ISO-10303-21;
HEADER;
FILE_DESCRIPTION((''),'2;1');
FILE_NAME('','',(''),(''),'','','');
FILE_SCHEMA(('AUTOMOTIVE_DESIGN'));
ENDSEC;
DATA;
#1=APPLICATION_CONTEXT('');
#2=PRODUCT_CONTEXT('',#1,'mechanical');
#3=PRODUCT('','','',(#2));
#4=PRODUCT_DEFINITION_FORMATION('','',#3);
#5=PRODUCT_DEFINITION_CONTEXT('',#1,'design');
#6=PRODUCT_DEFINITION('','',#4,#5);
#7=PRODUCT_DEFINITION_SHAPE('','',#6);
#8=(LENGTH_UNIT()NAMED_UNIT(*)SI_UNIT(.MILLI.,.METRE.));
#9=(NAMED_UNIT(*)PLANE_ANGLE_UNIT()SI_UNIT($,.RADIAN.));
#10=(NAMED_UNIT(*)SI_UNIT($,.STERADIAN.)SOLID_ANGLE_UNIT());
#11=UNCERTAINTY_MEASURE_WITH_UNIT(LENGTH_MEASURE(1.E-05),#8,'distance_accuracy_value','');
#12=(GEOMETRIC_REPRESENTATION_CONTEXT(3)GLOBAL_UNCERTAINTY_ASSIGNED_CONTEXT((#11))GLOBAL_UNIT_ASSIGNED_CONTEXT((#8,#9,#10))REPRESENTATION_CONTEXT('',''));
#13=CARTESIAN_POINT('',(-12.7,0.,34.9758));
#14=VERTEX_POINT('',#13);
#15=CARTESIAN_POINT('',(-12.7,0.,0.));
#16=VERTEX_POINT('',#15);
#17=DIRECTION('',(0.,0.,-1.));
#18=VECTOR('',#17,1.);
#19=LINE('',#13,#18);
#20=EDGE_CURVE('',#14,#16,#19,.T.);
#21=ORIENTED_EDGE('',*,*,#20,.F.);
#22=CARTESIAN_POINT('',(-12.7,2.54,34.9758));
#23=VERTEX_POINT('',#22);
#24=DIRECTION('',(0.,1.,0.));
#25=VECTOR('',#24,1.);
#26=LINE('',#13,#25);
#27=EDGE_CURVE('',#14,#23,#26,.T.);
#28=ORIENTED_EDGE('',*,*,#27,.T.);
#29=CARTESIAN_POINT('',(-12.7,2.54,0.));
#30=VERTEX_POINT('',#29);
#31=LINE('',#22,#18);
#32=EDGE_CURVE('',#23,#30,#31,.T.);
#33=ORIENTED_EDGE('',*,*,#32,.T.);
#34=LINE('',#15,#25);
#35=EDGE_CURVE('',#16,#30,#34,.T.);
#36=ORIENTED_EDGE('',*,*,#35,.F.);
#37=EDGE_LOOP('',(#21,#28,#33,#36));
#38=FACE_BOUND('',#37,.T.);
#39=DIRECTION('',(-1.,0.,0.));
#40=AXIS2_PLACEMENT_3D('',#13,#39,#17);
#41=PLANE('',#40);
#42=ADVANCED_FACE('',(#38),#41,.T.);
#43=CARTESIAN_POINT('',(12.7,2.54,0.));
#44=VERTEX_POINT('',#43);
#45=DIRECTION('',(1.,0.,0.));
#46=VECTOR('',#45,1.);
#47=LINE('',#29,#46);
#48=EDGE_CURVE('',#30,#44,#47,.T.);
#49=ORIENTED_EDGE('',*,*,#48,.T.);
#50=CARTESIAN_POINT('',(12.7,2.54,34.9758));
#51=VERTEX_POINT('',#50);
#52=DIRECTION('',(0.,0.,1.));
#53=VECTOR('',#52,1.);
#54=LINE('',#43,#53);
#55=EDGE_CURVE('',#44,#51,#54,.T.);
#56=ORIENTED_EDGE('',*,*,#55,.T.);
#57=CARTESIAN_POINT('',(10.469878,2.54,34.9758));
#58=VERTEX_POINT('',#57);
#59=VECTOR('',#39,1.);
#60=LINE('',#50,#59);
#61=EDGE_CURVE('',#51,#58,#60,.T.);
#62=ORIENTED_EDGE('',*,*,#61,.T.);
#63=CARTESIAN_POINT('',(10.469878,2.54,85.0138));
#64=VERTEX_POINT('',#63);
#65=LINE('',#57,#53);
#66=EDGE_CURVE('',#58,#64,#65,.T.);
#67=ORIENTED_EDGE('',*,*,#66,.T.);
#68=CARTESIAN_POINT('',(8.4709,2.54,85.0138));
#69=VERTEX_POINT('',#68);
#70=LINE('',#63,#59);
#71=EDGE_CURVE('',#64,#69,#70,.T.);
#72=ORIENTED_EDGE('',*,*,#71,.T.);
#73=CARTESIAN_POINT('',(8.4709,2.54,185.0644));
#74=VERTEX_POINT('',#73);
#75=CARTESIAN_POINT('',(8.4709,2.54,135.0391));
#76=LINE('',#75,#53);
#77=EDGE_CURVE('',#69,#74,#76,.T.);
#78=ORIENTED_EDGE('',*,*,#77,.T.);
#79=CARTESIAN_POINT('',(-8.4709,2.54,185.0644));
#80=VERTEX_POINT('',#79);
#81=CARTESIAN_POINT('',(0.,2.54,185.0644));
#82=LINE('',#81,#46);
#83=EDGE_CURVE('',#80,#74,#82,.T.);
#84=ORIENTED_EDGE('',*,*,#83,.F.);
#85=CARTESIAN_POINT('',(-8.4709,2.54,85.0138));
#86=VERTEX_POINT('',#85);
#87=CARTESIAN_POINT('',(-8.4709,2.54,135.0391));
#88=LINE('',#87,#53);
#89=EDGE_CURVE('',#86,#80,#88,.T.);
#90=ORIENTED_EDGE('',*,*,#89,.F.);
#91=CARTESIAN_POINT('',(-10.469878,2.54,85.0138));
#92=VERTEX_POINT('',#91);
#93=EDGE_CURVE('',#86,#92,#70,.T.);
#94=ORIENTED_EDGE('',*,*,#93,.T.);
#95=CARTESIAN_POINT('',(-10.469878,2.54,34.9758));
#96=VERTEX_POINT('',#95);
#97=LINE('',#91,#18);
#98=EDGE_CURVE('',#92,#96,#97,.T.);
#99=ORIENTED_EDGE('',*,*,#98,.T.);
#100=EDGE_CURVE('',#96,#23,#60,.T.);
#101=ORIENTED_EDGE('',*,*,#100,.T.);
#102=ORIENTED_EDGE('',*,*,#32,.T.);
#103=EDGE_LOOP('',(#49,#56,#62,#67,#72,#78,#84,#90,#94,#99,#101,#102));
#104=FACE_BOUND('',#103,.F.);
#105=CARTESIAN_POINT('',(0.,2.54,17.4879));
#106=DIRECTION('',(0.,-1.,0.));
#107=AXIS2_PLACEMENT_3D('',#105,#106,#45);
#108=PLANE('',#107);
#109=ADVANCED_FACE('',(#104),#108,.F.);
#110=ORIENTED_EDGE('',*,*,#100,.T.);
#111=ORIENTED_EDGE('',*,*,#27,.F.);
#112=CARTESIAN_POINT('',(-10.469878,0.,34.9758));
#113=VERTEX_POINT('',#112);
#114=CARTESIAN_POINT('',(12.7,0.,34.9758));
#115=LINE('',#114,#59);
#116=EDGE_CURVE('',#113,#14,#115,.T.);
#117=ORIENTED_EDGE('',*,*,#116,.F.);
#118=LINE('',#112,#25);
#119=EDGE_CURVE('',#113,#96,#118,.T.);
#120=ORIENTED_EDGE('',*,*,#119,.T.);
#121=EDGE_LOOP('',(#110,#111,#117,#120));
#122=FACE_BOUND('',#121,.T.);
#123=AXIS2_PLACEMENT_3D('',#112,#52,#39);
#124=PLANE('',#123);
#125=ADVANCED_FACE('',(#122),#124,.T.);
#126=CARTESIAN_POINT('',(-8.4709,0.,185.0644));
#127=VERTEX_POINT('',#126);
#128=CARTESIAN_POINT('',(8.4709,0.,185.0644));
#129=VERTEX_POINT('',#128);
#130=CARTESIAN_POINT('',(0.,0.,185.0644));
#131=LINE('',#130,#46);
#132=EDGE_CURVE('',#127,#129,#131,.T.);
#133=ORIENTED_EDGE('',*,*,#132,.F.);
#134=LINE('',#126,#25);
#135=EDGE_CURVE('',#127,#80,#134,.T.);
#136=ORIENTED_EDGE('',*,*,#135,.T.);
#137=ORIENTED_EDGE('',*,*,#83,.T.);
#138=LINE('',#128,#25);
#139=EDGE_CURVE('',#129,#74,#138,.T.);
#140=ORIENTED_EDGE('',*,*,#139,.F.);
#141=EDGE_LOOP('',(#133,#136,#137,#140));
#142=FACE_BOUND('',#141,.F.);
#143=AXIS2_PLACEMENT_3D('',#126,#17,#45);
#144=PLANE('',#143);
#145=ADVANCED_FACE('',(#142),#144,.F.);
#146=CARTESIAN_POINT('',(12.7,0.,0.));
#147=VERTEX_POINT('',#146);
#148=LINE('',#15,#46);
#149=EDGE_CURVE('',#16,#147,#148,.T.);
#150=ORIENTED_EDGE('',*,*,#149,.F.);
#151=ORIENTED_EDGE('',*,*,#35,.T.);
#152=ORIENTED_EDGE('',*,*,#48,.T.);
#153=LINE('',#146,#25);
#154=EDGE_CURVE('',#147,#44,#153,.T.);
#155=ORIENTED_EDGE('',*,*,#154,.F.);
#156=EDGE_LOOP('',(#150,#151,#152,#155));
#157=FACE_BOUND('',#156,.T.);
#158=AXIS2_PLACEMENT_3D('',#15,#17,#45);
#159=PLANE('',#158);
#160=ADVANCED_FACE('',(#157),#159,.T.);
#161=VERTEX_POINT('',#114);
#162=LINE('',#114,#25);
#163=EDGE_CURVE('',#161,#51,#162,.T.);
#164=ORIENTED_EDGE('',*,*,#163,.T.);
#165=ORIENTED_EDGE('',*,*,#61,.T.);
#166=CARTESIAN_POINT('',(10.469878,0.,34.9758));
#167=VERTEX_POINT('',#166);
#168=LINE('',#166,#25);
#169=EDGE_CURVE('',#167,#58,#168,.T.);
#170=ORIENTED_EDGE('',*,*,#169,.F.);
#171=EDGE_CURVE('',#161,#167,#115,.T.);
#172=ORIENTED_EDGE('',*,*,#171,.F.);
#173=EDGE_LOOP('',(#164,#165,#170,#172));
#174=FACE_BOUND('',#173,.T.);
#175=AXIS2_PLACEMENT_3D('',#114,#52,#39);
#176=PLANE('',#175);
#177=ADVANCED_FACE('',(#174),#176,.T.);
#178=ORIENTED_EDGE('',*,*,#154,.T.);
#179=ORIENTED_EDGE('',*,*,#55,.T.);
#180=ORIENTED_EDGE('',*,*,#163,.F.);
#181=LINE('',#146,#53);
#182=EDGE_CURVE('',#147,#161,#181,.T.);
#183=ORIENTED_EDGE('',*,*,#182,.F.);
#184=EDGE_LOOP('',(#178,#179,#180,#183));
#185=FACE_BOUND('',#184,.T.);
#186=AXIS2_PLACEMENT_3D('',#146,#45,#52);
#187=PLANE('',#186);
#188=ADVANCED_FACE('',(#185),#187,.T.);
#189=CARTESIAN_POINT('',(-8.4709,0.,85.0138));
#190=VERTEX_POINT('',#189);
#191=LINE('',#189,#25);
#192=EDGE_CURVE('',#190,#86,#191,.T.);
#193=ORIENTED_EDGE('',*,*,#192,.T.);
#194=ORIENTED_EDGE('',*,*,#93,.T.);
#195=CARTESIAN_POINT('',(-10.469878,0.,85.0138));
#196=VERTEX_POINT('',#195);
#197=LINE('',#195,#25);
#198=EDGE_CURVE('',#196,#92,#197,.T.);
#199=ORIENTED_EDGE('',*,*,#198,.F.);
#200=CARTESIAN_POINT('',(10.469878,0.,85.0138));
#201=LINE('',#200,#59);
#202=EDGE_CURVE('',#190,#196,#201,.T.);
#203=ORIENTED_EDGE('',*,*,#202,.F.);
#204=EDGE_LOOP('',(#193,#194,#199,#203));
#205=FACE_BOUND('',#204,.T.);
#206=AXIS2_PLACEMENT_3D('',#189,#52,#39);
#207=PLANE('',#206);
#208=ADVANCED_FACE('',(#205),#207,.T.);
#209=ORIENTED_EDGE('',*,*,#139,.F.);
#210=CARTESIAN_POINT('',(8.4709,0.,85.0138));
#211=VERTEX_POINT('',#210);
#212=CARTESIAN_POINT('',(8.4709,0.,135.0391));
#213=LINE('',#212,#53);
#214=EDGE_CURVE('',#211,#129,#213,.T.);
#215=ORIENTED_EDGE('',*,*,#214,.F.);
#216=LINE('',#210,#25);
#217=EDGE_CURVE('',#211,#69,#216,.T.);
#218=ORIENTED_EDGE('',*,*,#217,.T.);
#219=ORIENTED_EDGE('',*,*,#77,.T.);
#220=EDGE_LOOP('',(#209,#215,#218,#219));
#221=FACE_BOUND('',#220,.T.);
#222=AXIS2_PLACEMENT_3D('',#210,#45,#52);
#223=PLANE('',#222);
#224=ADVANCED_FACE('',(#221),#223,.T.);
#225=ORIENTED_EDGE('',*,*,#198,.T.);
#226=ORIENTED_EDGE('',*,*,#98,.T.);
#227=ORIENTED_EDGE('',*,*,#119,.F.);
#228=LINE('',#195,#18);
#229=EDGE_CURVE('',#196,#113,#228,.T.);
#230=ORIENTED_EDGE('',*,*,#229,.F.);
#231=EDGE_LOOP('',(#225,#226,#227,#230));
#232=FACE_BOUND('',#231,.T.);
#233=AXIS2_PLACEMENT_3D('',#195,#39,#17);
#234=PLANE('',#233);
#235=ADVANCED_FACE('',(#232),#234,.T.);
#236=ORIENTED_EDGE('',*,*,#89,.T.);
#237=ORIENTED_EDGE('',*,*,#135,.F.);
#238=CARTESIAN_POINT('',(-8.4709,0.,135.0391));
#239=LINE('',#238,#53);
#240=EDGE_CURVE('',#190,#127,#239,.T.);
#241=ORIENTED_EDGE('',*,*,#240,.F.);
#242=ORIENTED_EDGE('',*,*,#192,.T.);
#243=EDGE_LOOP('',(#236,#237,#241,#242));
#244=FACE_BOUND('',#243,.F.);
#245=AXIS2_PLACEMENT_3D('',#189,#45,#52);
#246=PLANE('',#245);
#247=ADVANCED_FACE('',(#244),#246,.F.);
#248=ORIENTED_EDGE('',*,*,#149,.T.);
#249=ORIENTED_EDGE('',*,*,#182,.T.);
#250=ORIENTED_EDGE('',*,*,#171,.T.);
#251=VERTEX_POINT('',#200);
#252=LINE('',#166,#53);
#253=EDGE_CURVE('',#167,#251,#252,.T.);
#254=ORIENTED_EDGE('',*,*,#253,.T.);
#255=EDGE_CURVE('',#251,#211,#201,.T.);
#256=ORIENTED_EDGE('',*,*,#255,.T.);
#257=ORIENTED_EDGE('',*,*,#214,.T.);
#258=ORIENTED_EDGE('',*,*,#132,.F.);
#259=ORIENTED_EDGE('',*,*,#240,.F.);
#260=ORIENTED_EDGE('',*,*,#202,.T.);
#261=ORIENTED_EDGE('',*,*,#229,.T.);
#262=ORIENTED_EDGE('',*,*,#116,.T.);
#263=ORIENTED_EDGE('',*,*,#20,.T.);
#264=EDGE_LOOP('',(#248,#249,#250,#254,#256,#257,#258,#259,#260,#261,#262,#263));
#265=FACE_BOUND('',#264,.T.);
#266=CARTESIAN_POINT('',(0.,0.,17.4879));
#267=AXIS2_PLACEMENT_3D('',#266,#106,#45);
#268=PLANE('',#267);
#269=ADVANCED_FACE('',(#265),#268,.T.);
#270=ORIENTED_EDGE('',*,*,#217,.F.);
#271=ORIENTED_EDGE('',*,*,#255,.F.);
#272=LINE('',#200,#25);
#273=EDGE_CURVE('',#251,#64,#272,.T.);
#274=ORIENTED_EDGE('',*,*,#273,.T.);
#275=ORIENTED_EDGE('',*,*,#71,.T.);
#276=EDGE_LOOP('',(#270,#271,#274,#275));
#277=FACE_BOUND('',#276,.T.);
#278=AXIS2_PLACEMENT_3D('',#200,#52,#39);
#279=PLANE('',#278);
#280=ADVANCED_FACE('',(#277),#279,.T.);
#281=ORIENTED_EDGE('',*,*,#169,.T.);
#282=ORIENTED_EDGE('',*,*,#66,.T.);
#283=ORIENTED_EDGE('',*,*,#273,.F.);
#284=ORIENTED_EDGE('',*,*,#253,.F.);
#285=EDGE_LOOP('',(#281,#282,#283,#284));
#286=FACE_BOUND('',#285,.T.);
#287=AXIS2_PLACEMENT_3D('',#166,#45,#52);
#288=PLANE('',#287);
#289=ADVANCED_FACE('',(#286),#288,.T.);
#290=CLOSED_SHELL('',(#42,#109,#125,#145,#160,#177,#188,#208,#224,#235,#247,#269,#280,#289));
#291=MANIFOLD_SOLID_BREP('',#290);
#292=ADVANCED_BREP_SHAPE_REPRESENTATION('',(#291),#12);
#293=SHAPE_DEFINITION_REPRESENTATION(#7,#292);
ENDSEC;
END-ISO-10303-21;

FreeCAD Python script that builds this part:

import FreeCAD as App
import Part
import Sketcher

V = App.Vector
Q = App.Units.Quantity

doc = App.newDocument("Part")
body = doc.addObject("PartDesign::Body", "Body")

# Sketch on XZ plane
sketch1 = doc.addObject("Sketcher::SketchObject", "Sketch")
body.addObject(sketch1)
sketch1.AttachmentSupport = (doc.XZ_Plane, [""])
sketch1.MapMode = "FlatFace"
sketch1.addGeometry(Part.LineSegment(V(-12.7, 0, 0), V(12.7, 0, 0)), False)
sketch1.addGeometry(Part.LineSegment(V(12.7, 0, 0), V(12.7, 35, 0)), False)
sketch1.addGeometry(Part.LineSegment(V(12.7, 35, 0), V(10.5, 35, 0)), False)
sketch1.addGeometry(Part.LineSegment(V(10.5, 35, 0), V(10.5, 85, 0)), False)
sketch1.addGeometry(Part.LineSegment(V(10.5, 85, 0), V(8.5, 85, 0)), False)
sketch1.addGeometry(Part.LineSegment(V(8.5, 85, 0), V(8.5, 185.1, 0)), False)
sketch1.addGeometry(Part.LineSegment(V(8.5, 185.1, 0), V(-8.5, 185.1, 0)), False)
sketch1.addGeometry(Part.LineSegment(V(-8.5, 185.1, 0), V(-8.5, 85, 0)), False)
sketch1.addGeometry(Part.LineSegment(V(-8.5, 85, 0), V(-10.5, 85, 0)), False)
sketch1.addGeometry(Part.LineSegment(V(-10.5, 85, 0), V(-10.5, 35, 0)), False)
sketch1.addGeometry(Part.LineSegment(V(-10.5, 35, 0), V(-12.7, 35, 0)), False)
sketch1.addGeometry(Part.LineSegment(V(-12.7, 35, 0), V(-12.7, 0, 0)), False)
sketch1.addConstraint(Sketcher.Constraint("Coincident", 0, 2, 1, 1))
sketch1.addConstraint(Sketcher.Constraint("Coincident", 1, 2, 2, 1))
sketch1.addConstraint(Sketcher.Constraint("Coincident", 2, 2, 3, 1))
sketch1.addConstraint(Sketcher.Constraint("Coincident", 3, 2, 4, 1))
sketch1.addConstraint(Sketcher.Constraint("Coincident", 4, 2, 5, 1))
sketch1.addConstraint(Sketcher.Constraint("Coincident", 5, 2, 6, 1))
sketch1.addConstraint(Sketcher.Constraint("Coincident", 6, 2, 7, 1))
sketch1.addConstraint(Sketcher.Constraint("Coincident", 7, 2, 8, 1))
sketch1.addConstraint(Sketcher.Constraint("Coincident", 8, 2, 9, 1))
sketch1.addConstraint(Sketcher.Constraint("Coincident", 9, 2, 10, 1))
sketch1.addConstraint(Sketcher.Constraint("Coincident", 10, 2, 11, 1))
sketch1.addConstraint(Sketcher.Constraint("Coincident", 11, 2, 0, 1))
sketch1.addConstraint(Sketcher.Constraint("Horizontal", 0))
sketch1.addConstraint(Sketcher.Constraint("Vertical", 1))
sketch1.addConstraint(Sketcher.Constraint("Horizontal", 2))
sketch1.addConstraint(Sketcher.Constraint("Vertical", 3))
sketch1.addConstraint(Sketcher.Constraint("Horizontal", 4))
sketch1.addConstraint(Sketcher.Constraint("Vertical", 5))
sketch1.addConstraint(Sketcher.Constraint("Horizontal", 6))
sketch1.addConstraint(Sketcher.Constraint("Vertical", 7))
sketch1.addConstraint(Sketcher.Constraint("Horizontal", 8))
sketch1.addConstraint(Sketcher.Constraint("Vertical", 9))
sketch1.addConstraint(Sketcher.Constraint("Horizontal", 10))
sketch1.addConstraint(Sketcher.Constraint("Vertical", 11))
sketch1.addConstraint(Sketcher.Constraint("Symmetric", 0, 2, 11, 2, -1, 1))
sketch1.addConstraint(Sketcher.Constraint("Symmetric", 4, 2, 7, 2, -2))
sketch1.addConstraint(Sketcher.Constraint("Symmetric", 2, 2, 9, 2, -2))
sketch1.addConstraint(Sketcher.Constraint("DistanceX", 0, 1, 0, 2, Q("1 in")))
sketch1.addConstraint(Sketcher.Constraint("DistanceY", 3, 1, 3, 2, Q("1.97 in")))
sketch1.addConstraint(Sketcher.Constraint("DistanceX", 6, 2, 6, 1, Q("0.667 in")))
sketch1.addConstraint(Sketcher.Constraint("DistanceY", 1, 1, 1, 2, Q("1.377 in")))
sketch1.addConstraint(Sketcher.Constraint("DistanceY", 5, 1, 5, 2, Q("3.939 in")))
sketch1.addConstraint(Sketcher.Constraint("DistanceX", 2, 2, 2, 1, Q("0.0878001 in")))
pad1 = doc.addObject("PartDesign::Pad", "Pad")
body.addObject(pad1)
pad1.Profile = sketch1
pad1.Length = Q("0.1 in")
pad1.Reversed = True

doc.recompute()
